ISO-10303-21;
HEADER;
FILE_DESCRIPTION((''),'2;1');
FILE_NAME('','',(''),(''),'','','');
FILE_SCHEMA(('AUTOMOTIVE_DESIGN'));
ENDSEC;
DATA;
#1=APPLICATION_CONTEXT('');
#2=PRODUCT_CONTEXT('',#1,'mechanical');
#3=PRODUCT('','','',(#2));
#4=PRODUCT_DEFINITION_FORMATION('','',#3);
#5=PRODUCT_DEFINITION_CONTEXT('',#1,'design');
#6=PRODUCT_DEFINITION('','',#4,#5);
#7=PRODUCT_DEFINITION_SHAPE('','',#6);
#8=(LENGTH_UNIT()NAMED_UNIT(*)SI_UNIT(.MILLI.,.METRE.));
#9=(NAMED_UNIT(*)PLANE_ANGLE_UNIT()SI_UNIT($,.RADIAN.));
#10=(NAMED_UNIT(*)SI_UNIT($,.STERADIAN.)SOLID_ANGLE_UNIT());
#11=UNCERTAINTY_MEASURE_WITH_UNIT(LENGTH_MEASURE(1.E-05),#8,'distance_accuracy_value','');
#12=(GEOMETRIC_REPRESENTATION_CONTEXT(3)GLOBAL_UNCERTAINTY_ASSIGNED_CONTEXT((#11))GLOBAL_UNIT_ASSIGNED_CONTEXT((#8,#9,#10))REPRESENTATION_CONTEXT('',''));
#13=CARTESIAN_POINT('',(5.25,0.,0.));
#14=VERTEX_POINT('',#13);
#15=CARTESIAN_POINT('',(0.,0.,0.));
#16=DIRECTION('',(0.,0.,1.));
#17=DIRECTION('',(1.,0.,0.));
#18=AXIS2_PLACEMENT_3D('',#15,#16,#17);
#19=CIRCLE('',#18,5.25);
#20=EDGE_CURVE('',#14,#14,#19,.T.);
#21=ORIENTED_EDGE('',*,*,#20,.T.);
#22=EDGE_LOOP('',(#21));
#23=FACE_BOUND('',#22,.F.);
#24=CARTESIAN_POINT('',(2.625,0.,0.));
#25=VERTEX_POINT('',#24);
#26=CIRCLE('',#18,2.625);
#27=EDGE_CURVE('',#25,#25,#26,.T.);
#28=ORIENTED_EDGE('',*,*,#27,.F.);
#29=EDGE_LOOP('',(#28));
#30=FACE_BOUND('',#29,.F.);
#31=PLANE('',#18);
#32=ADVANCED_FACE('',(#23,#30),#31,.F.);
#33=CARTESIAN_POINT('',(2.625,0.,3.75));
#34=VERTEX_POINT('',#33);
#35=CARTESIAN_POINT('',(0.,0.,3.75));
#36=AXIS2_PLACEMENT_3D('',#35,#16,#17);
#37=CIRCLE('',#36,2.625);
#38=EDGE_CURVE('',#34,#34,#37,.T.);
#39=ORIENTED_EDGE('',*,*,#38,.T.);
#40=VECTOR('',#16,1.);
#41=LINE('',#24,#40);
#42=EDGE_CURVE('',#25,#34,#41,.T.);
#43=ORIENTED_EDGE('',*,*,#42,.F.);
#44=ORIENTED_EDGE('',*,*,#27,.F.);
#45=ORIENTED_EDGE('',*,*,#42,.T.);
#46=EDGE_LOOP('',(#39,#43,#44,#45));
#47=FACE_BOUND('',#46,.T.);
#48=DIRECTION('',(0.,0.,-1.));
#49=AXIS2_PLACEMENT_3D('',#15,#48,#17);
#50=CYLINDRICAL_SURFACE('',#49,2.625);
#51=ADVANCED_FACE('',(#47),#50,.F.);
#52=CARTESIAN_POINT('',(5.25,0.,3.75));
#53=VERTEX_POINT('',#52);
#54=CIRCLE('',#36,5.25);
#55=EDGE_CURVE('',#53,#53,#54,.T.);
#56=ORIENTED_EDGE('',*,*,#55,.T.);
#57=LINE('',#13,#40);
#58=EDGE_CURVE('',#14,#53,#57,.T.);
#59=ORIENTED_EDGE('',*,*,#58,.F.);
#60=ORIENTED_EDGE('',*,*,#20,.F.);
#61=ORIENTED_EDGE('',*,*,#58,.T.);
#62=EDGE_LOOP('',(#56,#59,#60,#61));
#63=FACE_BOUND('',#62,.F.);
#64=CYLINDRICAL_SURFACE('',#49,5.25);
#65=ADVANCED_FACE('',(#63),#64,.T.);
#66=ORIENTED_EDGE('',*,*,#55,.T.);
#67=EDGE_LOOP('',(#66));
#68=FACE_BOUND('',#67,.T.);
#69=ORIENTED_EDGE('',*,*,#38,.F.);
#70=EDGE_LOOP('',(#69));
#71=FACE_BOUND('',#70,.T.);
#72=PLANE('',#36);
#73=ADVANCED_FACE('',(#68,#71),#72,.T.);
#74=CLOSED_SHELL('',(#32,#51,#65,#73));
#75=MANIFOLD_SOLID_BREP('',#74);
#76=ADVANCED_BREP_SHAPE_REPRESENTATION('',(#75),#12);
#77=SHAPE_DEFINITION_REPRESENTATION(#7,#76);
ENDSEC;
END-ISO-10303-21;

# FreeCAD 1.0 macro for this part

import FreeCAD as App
import Part
import Sketcher
from FreeCAD import Vector

doc = App.newDocument("Part")
body = doc.addObject("PartDesign::Body", "Body")

# Sketch on XY plane
sketch1 = body.newObject("Sketcher::SketchObject", "Sketch")
sketch1.AttachmentSupport = (doc.getObject("XY_Plane"), [""])
sketch1.MapMode = "FlatFace"
sketch1.addGeometry([
    Part.Circle(Vector(0, 0, 0), Vector(0, 0, 1), 5.2),
    Part.Circle(Vector(0, 0, 0), Vector(0, 0, 1), 2.6),
], False)
sketch1.addConstraint([
    Sketcher.Constraint("Coincident", 0, 3, -1, 1),
    Sketcher.Constraint("Coincident", 1, 3, -1, 1),
    Sketcher.Constraint("Diameter", 0, 10.5),
    Sketcher.Constraint("Diameter", 1, 5.25),
])
pad1 = body.newObject("PartDesign::Pad", "Pad")
pad1.Profile = sketch1
pad1.Length = 3.75

doc.recompute()
